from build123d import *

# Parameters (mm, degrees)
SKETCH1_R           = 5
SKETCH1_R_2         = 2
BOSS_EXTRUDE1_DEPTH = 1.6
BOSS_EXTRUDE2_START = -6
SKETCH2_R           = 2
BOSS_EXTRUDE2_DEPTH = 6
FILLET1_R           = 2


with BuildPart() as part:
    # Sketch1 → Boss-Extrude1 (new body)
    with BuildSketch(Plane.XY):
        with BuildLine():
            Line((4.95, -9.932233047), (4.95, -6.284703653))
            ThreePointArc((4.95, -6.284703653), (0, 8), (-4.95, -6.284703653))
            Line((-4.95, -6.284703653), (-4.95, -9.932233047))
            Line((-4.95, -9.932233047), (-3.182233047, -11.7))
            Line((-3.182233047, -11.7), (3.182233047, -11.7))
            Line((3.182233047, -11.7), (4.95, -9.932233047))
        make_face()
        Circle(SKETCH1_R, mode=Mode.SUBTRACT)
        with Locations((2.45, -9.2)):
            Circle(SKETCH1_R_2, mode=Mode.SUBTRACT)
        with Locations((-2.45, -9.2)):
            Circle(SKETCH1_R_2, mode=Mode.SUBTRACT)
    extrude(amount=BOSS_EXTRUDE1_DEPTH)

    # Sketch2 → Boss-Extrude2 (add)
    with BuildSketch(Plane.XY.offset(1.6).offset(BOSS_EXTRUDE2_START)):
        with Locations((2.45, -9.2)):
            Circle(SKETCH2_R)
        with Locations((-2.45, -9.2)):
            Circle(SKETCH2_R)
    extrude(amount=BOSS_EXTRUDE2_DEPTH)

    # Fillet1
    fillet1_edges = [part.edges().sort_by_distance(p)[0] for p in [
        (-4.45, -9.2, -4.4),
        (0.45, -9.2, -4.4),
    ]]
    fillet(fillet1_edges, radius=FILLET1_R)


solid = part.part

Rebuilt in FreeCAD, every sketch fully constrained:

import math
import FreeCAD as App
import Part
import Sketcher
from FreeCAD import Vector
Q = App.Units.Quantity


def edges_at(feature, points):
    """Names of the edges that pass closest to the given points."""
    edges = feature.Shape.Edges
    near = lambda p: min(range(len(edges)), key=lambda i: edges[i].distToShape(Part.Vertex(*p))[0])
    return sorted({f"Edge{near(p) + 1}" for p in points})

doc = App.newDocument("Part")
body = doc.addObject("PartDesign::Body", "Body")

# Sketch on XY plane
sketch1 = body.newObject("Sketcher::SketchObject", "Sketch")
sketch1.AttachmentSupport = (doc.getObject("XY_Plane"), [""])
sketch1.MapMode = "FlatFace"
sketch1.addGeometry([
    Part.LineSegment(Vector(5, -9.9, 0), Vector(5, -6.3, 0)),  # 0
    Part.ArcOfCircle(Part.Circle(Vector(0, 0, 0), Vector(0, 0, 1), 8), math.radians(-52), math.radians(232)),  # 1
    Part.LineSegment(Vector(-5, -6.3, 0), Vector(-5, -9.9, 0)),  # 2
    Part.LineSegment(Vector(-5, -9.9, 0), Vector(-3.2, -11.7, 0)),  # 3
    Part.LineSegment(Vector(-3.2, -11.7, 0), Vector(3.2, -11.7, 0)),  # 4
    Part.LineSegment(Vector(3.2, -11.7, 0), Vector(5, -9.9, 0)),  # 5
    Part.Circle(Vector(-2.5, -9.2, 0), Vector(0, 0, 1), 2),  # 6
    Part.Circle(Vector(2.5, -9.2, 0), Vector(0, 0, 1), 2),  # 7
    Part.Circle(Vector(0, 0, 0), Vector(0, 0, 1), 5),  # 8
], False)
sketch1.addConstraint([
    Sketcher.Constraint("Coincident", 0, 2, 1, 1),
    Sketcher.Constraint("Coincident", 1, 2, 2, 1),
    Sketcher.Constraint("Coincident", 2, 2, 3, 1),
    Sketcher.Constraint("Coincident", 3, 2, 4, 1),
    Sketcher.Constraint("Coincident", 4, 2, 5, 1),
    Sketcher.Constraint("Coincident", 5, 2, 0, 1),
    Sketcher.Constraint("Vertical", 0),
    Sketcher.Constraint("Vertical", 2),
    Sketcher.Constraint("Horizontal", 4),
    Sketcher.Constraint("Coincident", 1, 3, -1, 1),
    Sketcher.Constraint("Coincident", 8, 3, -1, 1),
    Sketcher.Constraint("Equal", 6, 7),
    Sketcher.Constraint("Symmetric", 6, 3, 7, 3, -2),
    Sketcher.Constraint("Symmetric", 2, 2, 5, 2, -2),
    Sketcher.Constraint("Perpendicular", 3, 5),
    Sketcher.Constraint("Equal", 3, 5),
    Sketcher.Constraint("Diameter", 6, Q("4 mm")),
    Sketcher.Constraint("Diameter", 8, Q("10 mm")),
    Sketcher.Constraint("Radius", 1, Q("8 mm")),
    Sketcher.Constraint("Distance", 3, Q("2.5 mm")),
    Sketcher.Constraint("DistanceY", 6, 3, -1, 1, Q("9.2 mm")),
    Sketcher.Constraint("DistanceY", 3, 2, -1, 1, Q("11.7 mm")),
    Sketcher.Constraint("DistanceX", 6, 3, 7, 3, Q("4.9 mm")),
    Sketcher.Constraint("DistanceX", 7, 3, 0, 2, Q("2.5 mm")),
])
pad1 = body.newObject("PartDesign::Pad", "Pad")
pad1.Profile = sketch1
pad1.Length = 1.6

# Sketch on XY plane
sketch2 = body.newObject("Sketcher::SketchObject", "Sketch001")
sketch2.AttachmentSupport = (doc.getObject("XY_Plane"), [""])
sketch2.MapMode = "FlatFace"
sketch2.AttachmentOffset = App.Placement(Vector(0, 0, -4.4), App.Rotation())
sketch2.addGeometry([
    Part.Circle(Vector(2.5, -9.2, 0), Vector(0, 0, 1), 2),
    Part.Circle(Vector(-2.5, -9.2, 0), Vector(0, 0, 1), 2),
], False)
sketch2.addConstraint([
    Sketcher.Constraint("Equal", 0, 1),
    Sketcher.Constraint("Symmetric", 0, 3, 1, 3, -2),
    Sketcher.Constraint("Diameter", 0, Q("4 mm")),
    Sketcher.Constraint("DistanceY", 0, 3, -1, 1, Q("9.2 mm")),
    Sketcher.Constraint("DistanceX", 1, 3, 0, 3, Q("4.9 mm")),
])
pad2 = body.newObject("PartDesign::Pad", "Pad001")
pad2.Profile = sketch2
pad2.Length = 6
doc.recompute()

fillet = body.newObject("PartDesign::Fillet", "Fillet")
fillet.Base = (pad2, edges_at(pad2, [(-4.45, -9.2, -4.4), (0.45, -9.2, -4.4)]))
fillet.Radius = 2

doc.recompute()
